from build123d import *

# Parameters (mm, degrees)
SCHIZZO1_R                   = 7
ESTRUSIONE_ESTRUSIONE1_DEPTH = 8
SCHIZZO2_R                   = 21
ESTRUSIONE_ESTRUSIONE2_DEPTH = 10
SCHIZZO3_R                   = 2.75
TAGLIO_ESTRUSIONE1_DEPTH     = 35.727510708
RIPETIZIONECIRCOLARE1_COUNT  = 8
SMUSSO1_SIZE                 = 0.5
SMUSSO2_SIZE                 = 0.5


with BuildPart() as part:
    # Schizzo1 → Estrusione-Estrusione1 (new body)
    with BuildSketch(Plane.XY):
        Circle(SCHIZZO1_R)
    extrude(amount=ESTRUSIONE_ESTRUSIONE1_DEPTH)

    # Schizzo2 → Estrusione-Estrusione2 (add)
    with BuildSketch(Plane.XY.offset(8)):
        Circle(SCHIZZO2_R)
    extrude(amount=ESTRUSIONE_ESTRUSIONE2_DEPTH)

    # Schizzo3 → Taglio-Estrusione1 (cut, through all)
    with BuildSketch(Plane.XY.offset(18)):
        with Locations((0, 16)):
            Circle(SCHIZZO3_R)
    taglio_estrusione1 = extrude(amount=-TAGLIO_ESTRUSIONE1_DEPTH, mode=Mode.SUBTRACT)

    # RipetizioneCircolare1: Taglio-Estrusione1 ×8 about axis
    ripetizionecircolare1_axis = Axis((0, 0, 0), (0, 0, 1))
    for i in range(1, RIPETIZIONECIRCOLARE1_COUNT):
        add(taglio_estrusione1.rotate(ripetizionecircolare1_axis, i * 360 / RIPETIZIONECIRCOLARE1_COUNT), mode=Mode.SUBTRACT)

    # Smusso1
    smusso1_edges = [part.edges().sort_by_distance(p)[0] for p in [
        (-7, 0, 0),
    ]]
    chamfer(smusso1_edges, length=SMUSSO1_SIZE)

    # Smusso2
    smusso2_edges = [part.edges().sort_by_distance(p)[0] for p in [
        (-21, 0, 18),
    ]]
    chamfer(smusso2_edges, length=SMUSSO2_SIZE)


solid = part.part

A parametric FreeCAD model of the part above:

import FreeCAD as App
import Part
import Sketcher
from FreeCAD import Vector
Q = App.Units.Quantity


def edges_at(feature, points):
    """Names of the edges that pass closest to the given points."""
    edges = feature.Shape.Edges
    near = lambda p: min(range(len(edges)), key=lambda i: edges[i].distToShape(Part.Vertex(*p))[0])
    return sorted({f"Edge{near(p) + 1}" for p in points})

doc = App.newDocument("Part")
body = doc.addObject("PartDesign::Body", "Body")

# Sketch on XY plane
sketch1 = body.newObject("Sketcher::SketchObject", "Sketch")
sketch1.AttachmentSupport = (doc.getObject("XY_Plane"), [""])
sketch1.MapMode = "FlatFace"
sketch1.addGeometry(Part.Circle(Vector(0, 0, 0), Vector(0, 0, 1), 7), False)
sketch1.addConstraint([
    Sketcher.Constraint("Coincident", 0, 3, -1, 1),
    Sketcher.Constraint("Diameter", 0, Q("14 mm")),
])
pad1 = body.newObject("PartDesign::Pad", "Pad")
pad1.Profile = sketch1
pad1.Length = 8

# Sketch on XY plane
sketch2 = body.newObject("Sketcher::SketchObject", "Sketch001")
sketch2.AttachmentSupport = (doc.getObject("XY_Plane"), [""])
sketch2.MapMode = "FlatFace"
sketch2.AttachmentOffset = App.Placement(Vector(0, 0, 8), App.Rotation())
sketch2.addGeometry(Part.Circle(Vector(0, 0, 0), Vector(0, 0, 1), 21), False)
sketch2.addConstraint([
    Sketcher.Constraint("Coincident", 0, 3, -1, 1),
    Sketcher.Constraint("Diameter", 0, Q("42 mm")),
])
pad2 = body.newObject("PartDesign::Pad", "Pad001")
pad2.Profile = sketch2
pad2.Length = 10

# Sketch on XY plane
sketch3 = body.newObject("Sketcher::SketchObject", "Sketch002")
sketch3.AttachmentSupport = (doc.getObject("XY_Plane"), [""])
sketch3.MapMode = "FlatFace"
sketch3.AttachmentOffset = App.Placement(Vector(0, 0, 18), App.Rotation())
sketch3.addGeometry(Part.Circle(Vector(0, 16, 0), Vector(0, 0, 1), 2.75), False)
sketch3.addConstraint([
    Sketcher.Constraint("PointOnObject", 0, 3, -2),
    Sketcher.Constraint("Diameter", 0, Q("5.5 mm")),
    Sketcher.Constraint("DistanceY", -1, 1, 0, 3, Q("16 mm")),
])
pocket1 = body.newObject("PartDesign::Pocket", "Pocket")
pocket1.Profile = sketch3
pocket1.Type = "ThroughAll"
doc.recompute()

polarpattern = body.newObject("PartDesign::PolarPattern", "PolarPattern")
polarpattern.Originals = [pocket1]
polarpattern.Axis = (doc.getObject("Z_Axis"), [""])
polarpattern.Angle = 360
polarpattern.Occurrences = 8
body.Tip = polarpattern
doc.recompute()

chamfer = body.newObject("PartDesign::Chamfer", "Chamfer")
chamfer.Base = (polarpattern, edges_at(polarpattern, [(-7, 0, 0)]))
chamfer.Size = 0.5
doc.recompute()

chamfer2 = body.newObject("PartDesign::Chamfer", "Chamfer001")
chamfer2.Base = (chamfer, edges_at(chamfer, [(-21, 0, 18)]))
chamfer2.Size = 0.5

doc.recompute()
